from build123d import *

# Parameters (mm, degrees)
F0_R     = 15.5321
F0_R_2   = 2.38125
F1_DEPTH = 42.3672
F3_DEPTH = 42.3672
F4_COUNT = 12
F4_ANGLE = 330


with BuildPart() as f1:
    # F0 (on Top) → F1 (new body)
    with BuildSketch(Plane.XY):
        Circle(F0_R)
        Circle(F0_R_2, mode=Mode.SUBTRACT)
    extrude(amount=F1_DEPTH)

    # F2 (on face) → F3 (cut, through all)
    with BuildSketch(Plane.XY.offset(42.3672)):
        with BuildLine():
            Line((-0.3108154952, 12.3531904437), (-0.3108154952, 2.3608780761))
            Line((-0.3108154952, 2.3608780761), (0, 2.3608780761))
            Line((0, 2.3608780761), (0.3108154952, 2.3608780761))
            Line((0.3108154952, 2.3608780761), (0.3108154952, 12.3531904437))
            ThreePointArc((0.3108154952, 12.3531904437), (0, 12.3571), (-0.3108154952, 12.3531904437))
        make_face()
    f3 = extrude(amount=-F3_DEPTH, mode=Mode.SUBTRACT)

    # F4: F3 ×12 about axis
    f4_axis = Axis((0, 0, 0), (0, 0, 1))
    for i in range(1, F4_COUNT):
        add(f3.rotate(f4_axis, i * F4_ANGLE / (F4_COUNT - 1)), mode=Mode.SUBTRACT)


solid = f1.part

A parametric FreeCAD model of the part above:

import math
import FreeCAD as App
import Part
import Sketcher
from FreeCAD import Vector
Q = App.Units.Quantity

doc = App.newDocument("Part")
body = doc.addObject("PartDesign::Body", "Body")

sketch1 = doc.addObject("Sketcher::SketchObject", "Sketch")
body.addObject(sketch1)
sketch1.AttachmentSupport = (doc.XY_Plane, [""])
sketch1.MapMode = "FlatFace"
sketch1.addGeometry(Part.Circle(Vector(0, 0, 0), Vector(0, 0, 1), 15.5321), False)
sketch1.addGeometry(Part.Circle(Vector(0, 0, 0), Vector(0, 0, 1), 2.38125), False)
sketch1.addConstraint(Sketcher.Constraint("Coincident", 0, 3, -1, 1))
sketch1.addConstraint(Sketcher.Constraint("Coincident", 1, 3, -1, 1))
sketch1.addConstraint(Sketcher.Constraint("Diameter", 0, Q("1.223 in")))
sketch1.addConstraint(Sketcher.Constraint("Diameter", 1, Q("0.1875 in")))
pad1 = doc.addObject("PartDesign::Pad", "Pad")
body.addObject(pad1)
pad1.Profile = sketch1
pad1.Length = Q("1.668 in")

sketch2 = doc.addObject("Sketcher::SketchObject", "Sketch001")
body.addObject(sketch2)
sketch2.AttachmentSupport = (doc.XY_Plane, [""])
sketch2.MapMode = "FlatFace"
sketch2.AttachmentOffset = App.Placement(Vector(0, 0, 1.668 * 25.4), App.Rotation())
sketch2.addGeometry(Part.LineSegment(Vector(-0.310815, 12.35319, 0), Vector(-0.310815, 2.360878, 0)), False)
sketch2.addGeometry(Part.LineSegment(Vector(-0.310815, 2.360878, 0), Vector(0.310815, 2.360878, 0)), False)
sketch2.addGeometry(Part.LineSegment(Vector(0.310815, 2.360878, 0), Vector(0.310815, 12.35319, 0)), False)
sketch2.addGeometry(Part.ArcOfCircle(Part.Circle(Vector(0, 0, 0), Vector(0, 0, 1), 12.3571), math.radians(88.5587), math.radians(91.4413)), False)
sketch2.addConstraint(Sketcher.Constraint("Coincident", 0, 2, 1, 1))
sketch2.addConstraint(Sketcher.Constraint("Coincident", 1, 2, 2, 1))
sketch2.addConstraint(Sketcher.Constraint("Coincident", 2, 2, 3, 1))
sketch2.addConstraint(Sketcher.Constraint("Coincident", 3, 2, 0, 1))
sketch2.addConstraint(Sketcher.Constraint("Vertical", 0))
sketch2.addConstraint(Sketcher.Constraint("Horizontal", 1))
sketch2.addConstraint(Sketcher.Constraint("Vertical", 2))
sketch2.addConstraint(Sketcher.Constraint("Coincident", 3, 3, -1, 1))
sketch2.addConstraint(Sketcher.Constraint("Horizontal", 2, 2, 3, 2))
sketch2.addConstraint(Sketcher.Constraint("Radius", 3, Q("0.4865 in")))
sketch2.addConstraint(Sketcher.Constraint("DistanceX", 1, 1, 1, 2, Q("0.621631 mm")))
sketch2.addConstraint(Sketcher.Constraint("DistanceY", 0, 2, 0, 1, Q("9.992312 mm")))
pocket1 = doc.addObject("PartDesign::Pocket", "Pocket")
body.addObject(pocket1)
pocket1.Profile = sketch2
pocket1.Type = "ThroughAll"
doc.recompute()

polarpattern = doc.addObject("PartDesign::PolarPattern", "PolarPattern")
body.addObject(polarpattern)
polarpattern.Originals = [pocket1]
polarpattern.Axis = (doc.Z_Axis, [""])
polarpattern.Angle = 360
polarpattern.Occurrences = 12
body.Tip = polarpattern

doc.recompute()
